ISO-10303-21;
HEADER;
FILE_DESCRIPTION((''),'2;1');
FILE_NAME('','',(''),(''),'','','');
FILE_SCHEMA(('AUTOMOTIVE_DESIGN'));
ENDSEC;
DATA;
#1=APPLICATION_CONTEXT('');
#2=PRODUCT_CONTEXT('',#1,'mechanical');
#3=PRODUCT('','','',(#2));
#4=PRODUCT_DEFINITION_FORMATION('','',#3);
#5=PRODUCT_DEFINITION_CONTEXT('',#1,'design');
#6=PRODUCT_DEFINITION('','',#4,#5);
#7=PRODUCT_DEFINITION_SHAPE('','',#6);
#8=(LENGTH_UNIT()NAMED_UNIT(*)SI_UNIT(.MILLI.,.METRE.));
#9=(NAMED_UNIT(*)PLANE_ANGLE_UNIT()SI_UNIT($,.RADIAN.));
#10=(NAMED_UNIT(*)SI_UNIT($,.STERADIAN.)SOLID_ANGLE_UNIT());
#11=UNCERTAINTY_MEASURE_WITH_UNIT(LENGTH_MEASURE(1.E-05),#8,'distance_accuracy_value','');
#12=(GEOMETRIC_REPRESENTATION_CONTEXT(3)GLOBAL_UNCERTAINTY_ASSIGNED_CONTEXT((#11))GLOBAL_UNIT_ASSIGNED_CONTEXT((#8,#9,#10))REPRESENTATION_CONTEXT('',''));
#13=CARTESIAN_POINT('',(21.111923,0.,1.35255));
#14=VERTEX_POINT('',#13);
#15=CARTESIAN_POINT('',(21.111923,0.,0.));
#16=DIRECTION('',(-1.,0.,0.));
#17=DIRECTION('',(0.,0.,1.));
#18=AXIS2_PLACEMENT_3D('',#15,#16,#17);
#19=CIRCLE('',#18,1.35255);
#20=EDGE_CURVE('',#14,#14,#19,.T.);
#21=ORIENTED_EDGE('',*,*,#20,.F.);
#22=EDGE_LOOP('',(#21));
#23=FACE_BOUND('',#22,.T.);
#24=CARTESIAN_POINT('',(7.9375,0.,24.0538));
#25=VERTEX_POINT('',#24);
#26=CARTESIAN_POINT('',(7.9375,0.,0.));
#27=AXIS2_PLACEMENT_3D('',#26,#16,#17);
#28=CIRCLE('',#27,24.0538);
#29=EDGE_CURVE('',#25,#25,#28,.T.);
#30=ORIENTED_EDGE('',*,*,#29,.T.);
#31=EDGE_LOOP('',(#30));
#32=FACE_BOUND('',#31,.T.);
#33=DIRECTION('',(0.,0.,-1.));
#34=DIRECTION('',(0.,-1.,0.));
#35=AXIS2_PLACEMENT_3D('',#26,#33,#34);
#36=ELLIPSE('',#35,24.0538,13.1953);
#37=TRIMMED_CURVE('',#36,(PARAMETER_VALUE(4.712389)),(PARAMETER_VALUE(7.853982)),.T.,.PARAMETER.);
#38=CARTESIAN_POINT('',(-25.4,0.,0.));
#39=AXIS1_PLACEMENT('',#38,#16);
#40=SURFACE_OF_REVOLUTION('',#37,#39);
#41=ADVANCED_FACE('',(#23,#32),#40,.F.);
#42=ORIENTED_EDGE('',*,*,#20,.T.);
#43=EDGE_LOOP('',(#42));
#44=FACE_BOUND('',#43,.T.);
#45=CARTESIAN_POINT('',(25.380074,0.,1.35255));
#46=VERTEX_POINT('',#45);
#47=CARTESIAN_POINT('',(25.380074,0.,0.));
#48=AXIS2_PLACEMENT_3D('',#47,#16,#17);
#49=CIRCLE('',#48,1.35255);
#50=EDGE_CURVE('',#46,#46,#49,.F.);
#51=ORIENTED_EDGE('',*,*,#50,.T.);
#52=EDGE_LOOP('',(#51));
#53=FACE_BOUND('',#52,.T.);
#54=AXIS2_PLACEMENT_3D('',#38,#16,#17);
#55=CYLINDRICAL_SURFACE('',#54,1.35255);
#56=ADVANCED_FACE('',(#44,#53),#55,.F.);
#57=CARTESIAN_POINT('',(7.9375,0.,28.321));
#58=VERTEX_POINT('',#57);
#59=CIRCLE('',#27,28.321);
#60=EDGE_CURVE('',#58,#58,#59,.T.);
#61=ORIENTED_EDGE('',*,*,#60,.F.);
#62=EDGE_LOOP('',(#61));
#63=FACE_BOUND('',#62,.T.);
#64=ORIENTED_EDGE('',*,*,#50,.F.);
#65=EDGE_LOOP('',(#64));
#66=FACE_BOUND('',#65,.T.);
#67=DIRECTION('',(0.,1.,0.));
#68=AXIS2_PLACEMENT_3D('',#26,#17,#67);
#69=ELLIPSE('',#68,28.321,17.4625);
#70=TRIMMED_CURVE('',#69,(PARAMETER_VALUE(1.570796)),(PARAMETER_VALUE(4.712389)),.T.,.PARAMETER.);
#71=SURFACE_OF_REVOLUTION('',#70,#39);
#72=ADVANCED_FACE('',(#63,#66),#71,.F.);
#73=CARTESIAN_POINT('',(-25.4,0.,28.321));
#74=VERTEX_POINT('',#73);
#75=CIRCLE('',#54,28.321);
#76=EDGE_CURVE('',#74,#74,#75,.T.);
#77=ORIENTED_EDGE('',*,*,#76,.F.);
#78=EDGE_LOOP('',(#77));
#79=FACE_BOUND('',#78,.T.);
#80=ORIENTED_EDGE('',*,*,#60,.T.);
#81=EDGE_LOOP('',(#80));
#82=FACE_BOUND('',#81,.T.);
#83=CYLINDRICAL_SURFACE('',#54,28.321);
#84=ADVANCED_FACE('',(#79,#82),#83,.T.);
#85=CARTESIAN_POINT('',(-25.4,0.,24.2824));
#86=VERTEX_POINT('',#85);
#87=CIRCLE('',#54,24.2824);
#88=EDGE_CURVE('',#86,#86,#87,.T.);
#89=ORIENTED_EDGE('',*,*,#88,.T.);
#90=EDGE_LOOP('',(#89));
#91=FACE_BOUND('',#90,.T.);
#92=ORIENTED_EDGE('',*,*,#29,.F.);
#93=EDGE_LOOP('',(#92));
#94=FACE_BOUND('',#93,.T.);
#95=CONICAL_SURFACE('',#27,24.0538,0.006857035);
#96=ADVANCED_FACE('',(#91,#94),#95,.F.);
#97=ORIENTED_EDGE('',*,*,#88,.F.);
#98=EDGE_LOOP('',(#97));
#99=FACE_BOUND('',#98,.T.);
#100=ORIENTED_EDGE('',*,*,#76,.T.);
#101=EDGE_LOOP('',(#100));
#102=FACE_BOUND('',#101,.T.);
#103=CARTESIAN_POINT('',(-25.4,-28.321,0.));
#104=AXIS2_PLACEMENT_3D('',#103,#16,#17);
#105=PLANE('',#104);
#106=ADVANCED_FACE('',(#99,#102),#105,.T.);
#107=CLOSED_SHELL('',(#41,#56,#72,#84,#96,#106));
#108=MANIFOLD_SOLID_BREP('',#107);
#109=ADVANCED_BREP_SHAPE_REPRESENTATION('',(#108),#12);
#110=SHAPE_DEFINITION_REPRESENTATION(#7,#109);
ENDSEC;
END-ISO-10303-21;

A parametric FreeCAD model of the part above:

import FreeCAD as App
import Part
import Sketcher
from FreeCAD import Vector
Q = App.Units.Quantity

doc = App.newDocument("Part")
params = doc.addObject("Spreadsheet::Sheet", "Params")
for row, (alias, value) in enumerate([
    ("sketch1_height", "0.159 in"),
    ("revolution_angle", "360 deg"),
    ("sketch2_width", "2 in"),
    ("groove_angle", "360 deg"),
], start=1):
    params.set(f"A{row}", alias)
    params.set(f"B{row}", "=" + value)
    params.setAlias(f"B{row}", alias)

body = doc.addObject("PartDesign::Body", "Body")

sketch1 = body.newObject("Sketcher::SketchObject", "Sketch")
sketch1.AttachmentSupport = (doc.getObject("XY_Plane"), [""])
sketch1.MapMode = "FlatFace"
sketch1.addGeometry(Part.LineSegment(Vector(25.4, 0, 0), Vector(21.1328, 0, 0)), False)
sketch1.addGeometry(Part.BSplineCurve([Vector(7.9375, -24.0538, 0), Vector(21.1328, -24.0538, 0), Vector(21.1328, 0, 0)], [3, 3], [0, 1.570796327], False, 2, [1, 0.707106781, 1], False), False)
sketch1.addGeometry(Part.LineSegment(Vector(7.9375, -24.0538, 0), Vector(-25.4, -24.2824, 0)), False)
sketch1.addGeometry(Part.LineSegment(Vector(-25.4, -24.2824, 0), Vector(-25.4, -28.321, 0)), False)
sketch1.addGeometry(Part.LineSegment(Vector(-25.4, -28.321, 0), Vector(7.9375, -28.321, 0)), False)
sketch1.addGeometry(Part.BSplineCurve([Vector(7.9375, -28.321, 0), Vector(25.4, -28.321, 0), Vector(25.4, 0, 0)], [3, 3], [3.141592654, 4.71238898], False, 2, [1, 0.707106781, 1], False), False)
sketch1.addConstraint(Sketcher.Constraint("Block", 1))
sketch1.addConstraint(Sketcher.Constraint("Block", 5))
sketch1.addConstraint(Sketcher.Constraint("Coincident", 0, 2, 1, 2))
sketch1.addConstraint(Sketcher.Constraint("Coincident", 1, 1, 2, 1))
sketch1.addConstraint(Sketcher.Constraint("Coincident", 2, 2, 3, 1))
sketch1.addConstraint(Sketcher.Constraint("Coincident", 3, 2, 4, 1))
sketch1.addConstraint(Sketcher.Constraint("Coincident", 4, 2, 5, 1))
sketch1.addConstraint(Sketcher.Constraint("Coincident", 5, 2, 0, 1))
sketch1.addConstraint(Sketcher.Constraint("Vertical", 3))
sketch1.addConstraint(Sketcher.Constraint("Horizontal", 4))
sketch1.addConstraint(Sketcher.Constraint("DistanceX", 2, 2, -1, 1, Q("1 in")))
sketch1.addConstraint(Sketcher.Constraint("DistanceY", 3, 2, 3, 1, Q("0.159 in")))
sketch1.setExpression("Constraints[11]", "Params.sketch1_height")
revolution = body.newObject("PartDesign::Revolution", "Revolution")
revolution.Profile = sketch1
revolution.ReferenceAxis = (sketch1, ["H_Axis"])
revolution.setExpression("Angle", "Params.revolution_angle")

sketch2 = body.newObject("Sketcher::SketchObject", "Sketch001")
sketch2.AttachmentSupport = (doc.getObject("XZ_Plane"), [""])
sketch2.MapMode = "FlatFace"
sketch2.addGeometry(Part.LineSegment(Vector(25.4, 0, 0), Vector(-25.4, 0, 0)), False)
sketch2.addGeometry(Part.LineSegment(Vector(-25.4, 0, 0), Vector(-25.4, 1.4, 0)), False)
sketch2.addGeometry(Part.LineSegment(Vector(-25.4, 1.4, 0), Vector(25.4, 1.4, 0)), False)
sketch2.addGeometry(Part.LineSegment(Vector(25.4, 1.4, 0), Vector(25.4, 0, 0)), False)
sketch2.addConstraint(Sketcher.Constraint("Coincident", 0, 2, 1, 1))
sketch2.addConstraint(Sketcher.Constraint("Coincident", 1, 2, 2, 1))
sketch2.addConstraint(Sketcher.Constraint("Coincident", 2, 2, 3, 1))
sketch2.addConstraint(Sketcher.Constraint("Coincident", 3, 2, 0, 1))
sketch2.addConstraint(Sketcher.Constraint("Horizontal", 0))
sketch2.addConstraint(Sketcher.Constraint("Vertical", 1))
sketch2.addConstraint(Sketcher.Constraint("Horizontal", 2))
sketch2.addConstraint(Sketcher.Constraint("Vertical", 3))
sketch2.addConstraint(Sketcher.Constraint("Symmetric", 0, 2, 3, 2, -1, 1))
sketch2.addConstraint(Sketcher.Constraint("DistanceX", 0, 2, 0, 1, Q("2 in")))
sketch2.addConstraint(Sketcher.Constraint("DistanceY", 1, 1, 1, 2, Q("1.35255 mm")))
sketch2.setExpression("Constraints[9]", "Params.sketch2_width")
groove = body.newObject("PartDesign::Groove", "Groove")
groove.Profile = sketch2
groove.ReferenceAxis = (sketch2, ["H_Axis"])
groove.setExpression("Angle", "Params.groove_angle")

doc.recompute()
